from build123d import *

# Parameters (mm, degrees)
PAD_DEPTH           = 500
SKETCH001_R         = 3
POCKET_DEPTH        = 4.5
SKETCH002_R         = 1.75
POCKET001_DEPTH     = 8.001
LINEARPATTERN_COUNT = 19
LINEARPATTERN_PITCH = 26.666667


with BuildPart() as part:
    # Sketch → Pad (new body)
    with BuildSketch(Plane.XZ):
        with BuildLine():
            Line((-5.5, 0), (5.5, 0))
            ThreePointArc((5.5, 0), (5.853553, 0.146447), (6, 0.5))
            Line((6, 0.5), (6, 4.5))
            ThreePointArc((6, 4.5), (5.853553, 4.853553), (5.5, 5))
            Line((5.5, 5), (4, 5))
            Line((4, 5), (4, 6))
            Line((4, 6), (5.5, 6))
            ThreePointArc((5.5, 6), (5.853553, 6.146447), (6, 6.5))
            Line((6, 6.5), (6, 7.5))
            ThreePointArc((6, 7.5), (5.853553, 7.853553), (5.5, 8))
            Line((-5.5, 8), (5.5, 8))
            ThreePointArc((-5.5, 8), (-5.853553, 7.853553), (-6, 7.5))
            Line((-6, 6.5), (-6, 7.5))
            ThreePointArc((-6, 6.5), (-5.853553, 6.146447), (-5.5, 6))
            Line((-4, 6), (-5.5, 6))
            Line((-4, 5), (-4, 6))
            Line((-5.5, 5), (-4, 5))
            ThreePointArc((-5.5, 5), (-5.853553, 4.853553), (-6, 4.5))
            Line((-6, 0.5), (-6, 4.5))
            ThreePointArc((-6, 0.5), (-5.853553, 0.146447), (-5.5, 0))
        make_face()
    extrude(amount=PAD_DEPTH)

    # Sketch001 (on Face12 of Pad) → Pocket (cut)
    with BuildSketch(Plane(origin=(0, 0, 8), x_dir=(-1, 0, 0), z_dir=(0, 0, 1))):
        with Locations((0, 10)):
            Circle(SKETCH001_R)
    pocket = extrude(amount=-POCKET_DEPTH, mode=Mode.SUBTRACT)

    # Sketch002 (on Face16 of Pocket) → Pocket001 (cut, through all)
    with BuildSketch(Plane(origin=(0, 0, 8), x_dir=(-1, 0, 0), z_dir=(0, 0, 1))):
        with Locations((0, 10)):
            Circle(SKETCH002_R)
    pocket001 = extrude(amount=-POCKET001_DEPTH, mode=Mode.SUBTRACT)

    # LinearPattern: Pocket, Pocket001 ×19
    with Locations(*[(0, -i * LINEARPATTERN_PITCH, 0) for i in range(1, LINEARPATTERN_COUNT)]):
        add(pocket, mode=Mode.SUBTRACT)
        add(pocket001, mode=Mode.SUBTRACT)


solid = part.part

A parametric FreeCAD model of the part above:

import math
import FreeCAD as App
import Part
import Sketcher

V = App.Vector
Q = App.Units.Quantity

doc = App.newDocument("Part")
params = doc.addObject("Spreadsheet::Sheet", "Params")
for row, (alias, value) in enumerate([
    ("sketch1_radius", "0.500001 mm"),
    ("sketch1_width", "11 mm"),
    ("sketch1_height", "4 mm"),
    ("sketch1_height2", "1 mm"),
    ("sketch1_width2", "1.5 mm"),
    ("pad1_length", "500 mm"),
    ("sketch2_diameter", "6 mm"),
    ("pocket1_length", "4.5 mm"),
    ("sketch3_diameter", "3.5 mm"),
    ("linearpattern_pitch", "26.666667 mm"),
], start=1):
    params.set(f"A{row}", alias)
    params.set(f"B{row}", "=" + value)
    params.setAlias(f"B{row}", alias)

body = doc.addObject("PartDesign::Body", "Body")

sketch1 = body.newObject("Sketcher::SketchObject", "Sketch")
sketch1.AttachmentSupport = (doc.getObject("XZ_Plane"), [""])
sketch1.MapMode = "FlatFace"
sketch1.addGeometry([
    Part.LineSegment(V(-5.5, 0, 0), V(5.5, 0, 0)),
    Part.ArcOfCircle(Part.Circle(V(5.5, 0.5, 0), V(0, 0, 1), 0.5), math.radians(-90), math.radians(0)),
    Part.LineSegment(V(6, 0.5, 0), V(6, 4.5, 0)),
    Part.ArcOfCircle(Part.Circle(V(5.5, 4.5, 0), V(0, 0, 1), 0.5), math.radians(0), math.radians(90)),
    Part.LineSegment(V(5.5, 5, 0), V(4, 5, 0)),
    Part.LineSegment(V(4, 5, 0), V(4, 6, 0)),
    Part.LineSegment(V(4, 6, 0), V(5.5, 6, 0)),
    Part.ArcOfCircle(Part.Circle(V(5.5, 6.5, 0), V(0, 0, 1), 0.5), math.radians(-90), math.radians(0)),
    Part.LineSegment(V(6, 6.5, 0), V(6, 7.5, 0)),
    Part.ArcOfCircle(Part.Circle(V(5.5, 7.5, 0), V(0, 0, 1), 0.5), math.radians(0), math.radians(90)),
    Part.LineSegment(V(5.5, 8, 0), V(-5.5, 8, 0)),
    Part.ArcOfCircle(Part.Circle(V(-5.5, 7.5, 0), V(0, 0, 1), 0.5), math.radians(90), math.radians(180)),
    Part.LineSegment(V(-6, 7.5, 0), V(-6, 6.5, 0)),
    Part.ArcOfCircle(Part.Circle(V(-5.5, 6.5, 0), V(0, 0, 1), 0.5), math.radians(-180), math.radians(-90)),
    Part.LineSegment(V(-5.5, 6, 0), V(-4, 6, 0)),
    Part.LineSegment(V(-4, 6, 0), V(-4, 5, 0)),
    Part.LineSegment(V(-4, 5, 0), V(-5.5, 5, 0)),
    Part.ArcOfCircle(Part.Circle(V(-5.5, 4.5, 0), V(0, 0, 1), 0.5), math.radians(90), math.radians(180)),
    Part.LineSegment(V(-6, 4.5, 0), V(-6, 0.5, 0)),
    Part.ArcOfCircle(Part.Circle(V(-5.5, 0.5, 0), V(0, 0, 1), 0.5), math.radians(-180), math.radians(-90)),
], False)
sketch1.addConstraint([
    Sketcher.Constraint("Coincident", 0, 2, 1, 1),
    Sketcher.Constraint("Coincident", 1, 2, 2, 1),
    Sketcher.Constraint("Coincident", 2, 2, 3, 1),
    Sketcher.Constraint("Coincident", 3, 2, 4, 1),
    Sketcher.Constraint("Coincident", 4, 2, 5, 1),
    Sketcher.Constraint("Coincident", 5, 2, 6, 1),
    Sketcher.Constraint("Coincident", 6, 2, 7, 1),
    Sketcher.Constraint("Coincident", 7, 2, 8, 1),
    Sketcher.Constraint("Coincident", 8, 2, 9, 1),
    Sketcher.Constraint("Coincident", 9, 2, 10, 1),
    Sketcher.Constraint("Coincident", 10, 2, 11, 1),
    Sketcher.Constraint("Coincident", 11, 2, 12, 1),
    Sketcher.Constraint("Coincident", 12, 2, 13, 1),
    Sketcher.Constraint("Coincident", 13, 2, 14, 1),
    Sketcher.Constraint("Coincident", 14, 2, 15, 1),
    Sketcher.Constraint("Coincident", 15, 2, 16, 1),
    Sketcher.Constraint("Coincident", 16, 2, 17, 1),
    Sketcher.Constraint("Coincident", 17, 2, 18, 1),
    Sketcher.Constraint("Coincident", 18, 2, 19, 1),
    Sketcher.Constraint("Coincident", 19, 2, 0, 1),
    Sketcher.Constraint("Horizontal", 0),
    Sketcher.Constraint("Vertical", 2),
    Sketcher.Constraint("Horizontal", 4),
    Sketcher.Constraint("Vertical", 5),
    Sketcher.Constraint("Horizontal", 6),
    Sketcher.Constraint("Vertical", 8),
    Sketcher.Constraint("Horizontal", 10),
    Sketcher.Constraint("Vertical", 12),
    Sketcher.Constraint("Horizontal", 14),
    Sketcher.Constraint("Vertical", 15),
    Sketcher.Constraint("Horizontal", 16),
    Sketcher.Constraint("Vertical", 18),
    Sketcher.Constraint("Equal", 1, 3),
    Sketcher.Constraint("Equal", 3, 7),
    Sketcher.Constraint("Equal", 7, 9),
    Sketcher.Constraint("Equal", 9, 11),
    Sketcher.Constraint("Equal", 11, 13),
    Sketcher.Constraint("Equal", 13, 17),
    Sketcher.Constraint("Equal", 17, 19),
    Sketcher.Constraint("Symmetric", 0, 2, 19, 2, -1, 1),
    Sketcher.Constraint("Symmetric", 7, 3, 13, 3, -2),
    Sketcher.Constraint("Symmetric", 3, 3, 17, 3, -2),
    Sketcher.Constraint("Horizontal", 19, 3, 1, 2),
    Sketcher.Constraint("Horizontal", 17, 3, 2, 2),
    Sketcher.Constraint("Horizontal", 13, 3, 7, 2),
    Sketcher.Constraint("Horizontal", 11, 3, 8, 2),
    Sketcher.Constraint("Horizontal", 8, 2, 11, 2),
    Sketcher.Constraint("Horizontal", 7, 2, 12, 2),
    Sketcher.Constraint("Horizontal", 2, 2, 17, 2),
    Sketcher.Constraint("Horizontal", 1, 2, 18, 2),
    Sketcher.Constraint("Vertical", 3, 3, 7, 3),
    Sketcher.Constraint("Vertical", 9, 3, 0, 2),
    Sketcher.Constraint("Vertical", 0, 2, 3, 2),
    Sketcher.Constraint("Vertical", 3, 2, 6, 2),
    Sketcher.Constraint("Vertical", 6, 2, 9, 2),
    Sketcher.Constraint("Vertical", 19, 3, 10, 2),
    Sketcher.Constraint("Vertical", 10, 2, 13, 2),
    Sketcher.Constraint("Vertical", 13, 2, 16, 2),
    Sketcher.Constraint("Equal", 6, 14),
    Sketcher.Constraint("Equal", 5, 8),
    Sketcher.Constraint("Radius", 1, Q("0.500001 mm")),
    Sketcher.Constraint("DistanceX", 0, 1, 0, 2, Q("11 mm")),
    Sketcher.Constraint("DistanceY", 2, 1, 2, 2, Q("4 mm")),
    Sketcher.Constraint("DistanceY", 5, 1, 5, 2, Q("1 mm")),
    Sketcher.Constraint("DistanceX", 4, 2, 4, 1, Q("1.5 mm")),
])
sketch1.setExpression("Constraints[60]", "Params.sketch1_radius")
sketch1.setExpression("Constraints[61]", "Params.sketch1_width")
sketch1.setExpression("Constraints[62]", "Params.sketch1_height")
sketch1.setExpression("Constraints[63]", "Params.sketch1_height2")
sketch1.setExpression("Constraints[64]", "Params.sketch1_width2")
pad1 = body.newObject("PartDesign::Pad", "Pad")
pad1.Profile = sketch1
pad1.setExpression("Length", "Params.pad1_length")

sketch2 = body.newObject("Sketcher::SketchObject", "Sketch001")
sketch2.AttachmentSupport = (doc.getObject("XY_Plane"), [""])
sketch2.MapMode = "FlatFace"
sketch2.AttachmentOffset = App.Placement(V(0, 0, 8), App.Rotation())
sketch2.addGeometry(Part.Circle(V(0, -10, 0), V(0, 0, 1), 3), False)
sketch2.addConstraint([
    Sketcher.Constraint("PointOnObject", 0, 3, -2),
    Sketcher.Constraint("Diameter", 0, Q("6 mm")),
    Sketcher.Constraint("DistanceY", 0, 3, -1, 1, Q("10 mm")),
])
sketch2.setExpression("Constraints[1]", "Params.sketch2_diameter")
pocket1 = body.newObject("PartDesign::Pocket", "Pocket")
pocket1.Profile = sketch2
pocket1.setExpression("Length", "Params.pocket1_length")

sketch3 = body.newObject("Sketcher::SketchObject", "Sketch002")
sketch3.AttachmentSupport = (doc.getObject("XY_Plane"), [""])
sketch3.MapMode = "FlatFace"
sketch3.AttachmentOffset = App.Placement(V(0, 0, 8), App.Rotation())
sketch3.addGeometry(Part.Circle(V(0, -10, 0), V(0, 0, 1), 1.8), False)
sketch3.addConstraint([
    Sketcher.Constraint("PointOnObject", 0, 3, -2),
    Sketcher.Constraint("Diameter", 0, Q("3.5 mm")),
    Sketcher.Constraint("DistanceY", 0, 3, -1, 1, Q("10 mm")),
])
sketch3.setExpression("Constraints[1]", "Params.sketch3_diameter")
pocket2 = body.newObject("PartDesign::Pocket", "Pocket001")
pocket2.Profile = sketch3
pocket2.Type = "ThroughAll"
doc.recompute()

linearpattern = body.newObject("PartDesign::LinearPattern", "LinearPattern")
linearpattern.Originals = [pocket1, pocket2]
linearpattern.Direction = (doc.getObject("Y_Axis"), [""])
linearpattern.Mode = "offset"
linearpattern.setExpression("Offset", "Params.linearpattern_pitch")
linearpattern.Occurrences = 19
linearpattern.Reversed = True
body.Tip = linearpattern

doc.recompute()
